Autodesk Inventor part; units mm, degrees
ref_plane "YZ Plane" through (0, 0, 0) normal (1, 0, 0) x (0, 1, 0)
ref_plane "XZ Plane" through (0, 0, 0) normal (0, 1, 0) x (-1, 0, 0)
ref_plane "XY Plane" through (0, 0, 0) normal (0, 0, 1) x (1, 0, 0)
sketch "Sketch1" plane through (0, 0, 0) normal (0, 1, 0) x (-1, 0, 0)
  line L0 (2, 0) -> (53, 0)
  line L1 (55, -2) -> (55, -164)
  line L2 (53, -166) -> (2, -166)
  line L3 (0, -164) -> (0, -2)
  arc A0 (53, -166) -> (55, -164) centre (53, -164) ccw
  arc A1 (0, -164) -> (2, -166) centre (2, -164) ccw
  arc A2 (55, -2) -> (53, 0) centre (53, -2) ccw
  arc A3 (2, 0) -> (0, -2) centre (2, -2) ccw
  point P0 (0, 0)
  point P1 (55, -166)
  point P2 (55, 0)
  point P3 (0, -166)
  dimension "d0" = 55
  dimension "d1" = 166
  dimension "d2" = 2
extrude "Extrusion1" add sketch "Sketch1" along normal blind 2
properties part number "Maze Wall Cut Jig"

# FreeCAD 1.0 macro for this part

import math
import FreeCAD as App
import Part
import Sketcher
from FreeCAD import Vector
Q = App.Units.Quantity

doc = App.newDocument("Part")
body = doc.addObject("PartDesign::Body", "Body")

sketch1 = body.newObject("Sketcher::SketchObject", "Sketch")
sketch1.AttachmentSupport = (doc.getObject("XZ_Plane"), [""])
sketch1.MapMode = "FlatFace"
sketch1.addGeometry(Part.LineSegment(Vector(-53, 0, 0), Vector(-2, 0, 0)), False)
sketch1.addGeometry(Part.ArcOfCircle(Part.Circle(Vector(-2, -2, 0), Vector(0, 0, 1), 2), math.radians(0), math.radians(90)), False)
sketch1.addGeometry(Part.LineSegment(Vector(0, -2, 0), Vector(0, -164, 0)), False)
sketch1.addGeometry(Part.ArcOfCircle(Part.Circle(Vector(-2, -164, 0), Vector(0, 0, 1), 2), math.radians(-90), math.radians(0)), False)
sketch1.addGeometry(Part.LineSegment(Vector(-2, -166, 0), Vector(-53, -166, 0)), False)
sketch1.addGeometry(Part.ArcOfCircle(Part.Circle(Vector(-53, -164, 0), Vector(0, 0, 1), 2), math.radians(180), math.radians(270)), False)
sketch1.addGeometry(Part.LineSegment(Vector(-55, -164, 0), Vector(-55, -2, 0)), False)
sketch1.addGeometry(Part.ArcOfCircle(Part.Circle(Vector(-53, -2, 0), Vector(0, 0, 1), 2), math.radians(90), math.radians(180)), False)
sketch1.addConstraint(Sketcher.Constraint("Tangent", 0, 2, 1, 2))
sketch1.addConstraint(Sketcher.Constraint("Tangent", 1, 1, 2, 1))
sketch1.addConstraint(Sketcher.Constraint("Tangent", 2, 2, 3, 2))
sketch1.addConstraint(Sketcher.Constraint("Tangent", 3, 1, 4, 1))
sketch1.addConstraint(Sketcher.Constraint("Tangent", 4, 2, 5, 2))
sketch1.addConstraint(Sketcher.Constraint("Tangent", 5, 1, 6, 1))
sketch1.addConstraint(Sketcher.Constraint("Tangent", 6, 2, 7, 2))
sketch1.addConstraint(Sketcher.Constraint("Tangent", 7, 1, 0, 1))
sketch1.addConstraint(Sketcher.Constraint("Horizontal", 0))
sketch1.addConstraint(Sketcher.Constraint("Vertical", 2))
sketch1.addConstraint(Sketcher.Constraint("Horizontal", 4))
sketch1.addConstraint(Sketcher.Constraint("Vertical", 6))
sketch1.addConstraint(Sketcher.Constraint("Equal", 1, 3))
sketch1.addConstraint(Sketcher.Constraint("Equal", 3, 5))
sketch1.addConstraint(Sketcher.Constraint("Equal", 5, 7))
sketch1.addConstraint(Sketcher.Constraint("PointOnObject", 0, 2, -1))
sketch1.addConstraint(Sketcher.Constraint("PointOnObject", 1, 1, -2))
sketch1.addConstraint(Sketcher.Constraint("Radius", 1, Q("2 mm")))
sketch1.addConstraint(Sketcher.Constraint("DistanceY", 3, 1, -1, 1, Q("166 mm")))
sketch1.addConstraint(Sketcher.Constraint("DistanceX", 5, 1, -1, 1, Q("55 mm")))
pad1 = body.newObject("PartDesign::Pad", "Pad")
pad1.Profile = sketch1
pad1.Length = 2
pad1.Reversed = True

doc.recompute()
